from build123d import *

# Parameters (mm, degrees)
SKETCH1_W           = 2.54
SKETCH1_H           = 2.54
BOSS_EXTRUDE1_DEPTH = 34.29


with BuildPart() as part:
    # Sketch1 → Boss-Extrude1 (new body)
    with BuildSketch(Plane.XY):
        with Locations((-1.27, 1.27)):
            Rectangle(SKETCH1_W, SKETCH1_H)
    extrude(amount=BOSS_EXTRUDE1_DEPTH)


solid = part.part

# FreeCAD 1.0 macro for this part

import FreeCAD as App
import Part
import Sketcher

V = App.Vector
Q = App.Units.Quantity


def add_polygon(sketch, points):
    """Adds a closed chain of lines whose ends are joined by coincident constraints."""
    first, n = sketch.GeometryCount, len(points)
    for a, b in zip(points, points[1:] + points[:1]):
        sketch.addGeometry(Part.LineSegment(App.Vector(*a, 0), App.Vector(*b, 0)), False)
    for i in range(n):
        sketch.addConstraint(Sketcher.Constraint("Coincident", first + i, 2, first + (i + 1) % n, 1))

doc = App.newDocument("Part")
body = doc.addObject("PartDesign::Body", "Body")

sketch1 = body.newObject("Sketcher::SketchObject", "Sketch")
sketch1.AttachmentSupport = (doc.getObject("XY_Plane"), [""])
sketch1.MapMode = "FlatFace"
add_polygon(sketch1, [(-2.5, 2.5), (-2.5, 0), (0, 0), (0, 2.5)])
sketch1.addConstraint(Sketcher.Constraint("Vertical", 0))
sketch1.addConstraint(Sketcher.Constraint("Horizontal", 1))
sketch1.addConstraint(Sketcher.Constraint("Vertical", 2))
sketch1.addConstraint(Sketcher.Constraint("Horizontal", 3))
sketch1.addConstraint(Sketcher.Constraint("Coincident", 1, 2, -1, 1))
sketch1.addConstraint(Sketcher.Constraint("Equal", 3, 0))
sketch1.addConstraint(Sketcher.Constraint("DistanceX", 1, 1, 1, 2, Q("0.1 in")))
pad1 = body.newObject("PartDesign::Pad", "Pad")
pad1.Profile = sketch1
pad1.Length = Q("1.35 in")

doc.recompute()
